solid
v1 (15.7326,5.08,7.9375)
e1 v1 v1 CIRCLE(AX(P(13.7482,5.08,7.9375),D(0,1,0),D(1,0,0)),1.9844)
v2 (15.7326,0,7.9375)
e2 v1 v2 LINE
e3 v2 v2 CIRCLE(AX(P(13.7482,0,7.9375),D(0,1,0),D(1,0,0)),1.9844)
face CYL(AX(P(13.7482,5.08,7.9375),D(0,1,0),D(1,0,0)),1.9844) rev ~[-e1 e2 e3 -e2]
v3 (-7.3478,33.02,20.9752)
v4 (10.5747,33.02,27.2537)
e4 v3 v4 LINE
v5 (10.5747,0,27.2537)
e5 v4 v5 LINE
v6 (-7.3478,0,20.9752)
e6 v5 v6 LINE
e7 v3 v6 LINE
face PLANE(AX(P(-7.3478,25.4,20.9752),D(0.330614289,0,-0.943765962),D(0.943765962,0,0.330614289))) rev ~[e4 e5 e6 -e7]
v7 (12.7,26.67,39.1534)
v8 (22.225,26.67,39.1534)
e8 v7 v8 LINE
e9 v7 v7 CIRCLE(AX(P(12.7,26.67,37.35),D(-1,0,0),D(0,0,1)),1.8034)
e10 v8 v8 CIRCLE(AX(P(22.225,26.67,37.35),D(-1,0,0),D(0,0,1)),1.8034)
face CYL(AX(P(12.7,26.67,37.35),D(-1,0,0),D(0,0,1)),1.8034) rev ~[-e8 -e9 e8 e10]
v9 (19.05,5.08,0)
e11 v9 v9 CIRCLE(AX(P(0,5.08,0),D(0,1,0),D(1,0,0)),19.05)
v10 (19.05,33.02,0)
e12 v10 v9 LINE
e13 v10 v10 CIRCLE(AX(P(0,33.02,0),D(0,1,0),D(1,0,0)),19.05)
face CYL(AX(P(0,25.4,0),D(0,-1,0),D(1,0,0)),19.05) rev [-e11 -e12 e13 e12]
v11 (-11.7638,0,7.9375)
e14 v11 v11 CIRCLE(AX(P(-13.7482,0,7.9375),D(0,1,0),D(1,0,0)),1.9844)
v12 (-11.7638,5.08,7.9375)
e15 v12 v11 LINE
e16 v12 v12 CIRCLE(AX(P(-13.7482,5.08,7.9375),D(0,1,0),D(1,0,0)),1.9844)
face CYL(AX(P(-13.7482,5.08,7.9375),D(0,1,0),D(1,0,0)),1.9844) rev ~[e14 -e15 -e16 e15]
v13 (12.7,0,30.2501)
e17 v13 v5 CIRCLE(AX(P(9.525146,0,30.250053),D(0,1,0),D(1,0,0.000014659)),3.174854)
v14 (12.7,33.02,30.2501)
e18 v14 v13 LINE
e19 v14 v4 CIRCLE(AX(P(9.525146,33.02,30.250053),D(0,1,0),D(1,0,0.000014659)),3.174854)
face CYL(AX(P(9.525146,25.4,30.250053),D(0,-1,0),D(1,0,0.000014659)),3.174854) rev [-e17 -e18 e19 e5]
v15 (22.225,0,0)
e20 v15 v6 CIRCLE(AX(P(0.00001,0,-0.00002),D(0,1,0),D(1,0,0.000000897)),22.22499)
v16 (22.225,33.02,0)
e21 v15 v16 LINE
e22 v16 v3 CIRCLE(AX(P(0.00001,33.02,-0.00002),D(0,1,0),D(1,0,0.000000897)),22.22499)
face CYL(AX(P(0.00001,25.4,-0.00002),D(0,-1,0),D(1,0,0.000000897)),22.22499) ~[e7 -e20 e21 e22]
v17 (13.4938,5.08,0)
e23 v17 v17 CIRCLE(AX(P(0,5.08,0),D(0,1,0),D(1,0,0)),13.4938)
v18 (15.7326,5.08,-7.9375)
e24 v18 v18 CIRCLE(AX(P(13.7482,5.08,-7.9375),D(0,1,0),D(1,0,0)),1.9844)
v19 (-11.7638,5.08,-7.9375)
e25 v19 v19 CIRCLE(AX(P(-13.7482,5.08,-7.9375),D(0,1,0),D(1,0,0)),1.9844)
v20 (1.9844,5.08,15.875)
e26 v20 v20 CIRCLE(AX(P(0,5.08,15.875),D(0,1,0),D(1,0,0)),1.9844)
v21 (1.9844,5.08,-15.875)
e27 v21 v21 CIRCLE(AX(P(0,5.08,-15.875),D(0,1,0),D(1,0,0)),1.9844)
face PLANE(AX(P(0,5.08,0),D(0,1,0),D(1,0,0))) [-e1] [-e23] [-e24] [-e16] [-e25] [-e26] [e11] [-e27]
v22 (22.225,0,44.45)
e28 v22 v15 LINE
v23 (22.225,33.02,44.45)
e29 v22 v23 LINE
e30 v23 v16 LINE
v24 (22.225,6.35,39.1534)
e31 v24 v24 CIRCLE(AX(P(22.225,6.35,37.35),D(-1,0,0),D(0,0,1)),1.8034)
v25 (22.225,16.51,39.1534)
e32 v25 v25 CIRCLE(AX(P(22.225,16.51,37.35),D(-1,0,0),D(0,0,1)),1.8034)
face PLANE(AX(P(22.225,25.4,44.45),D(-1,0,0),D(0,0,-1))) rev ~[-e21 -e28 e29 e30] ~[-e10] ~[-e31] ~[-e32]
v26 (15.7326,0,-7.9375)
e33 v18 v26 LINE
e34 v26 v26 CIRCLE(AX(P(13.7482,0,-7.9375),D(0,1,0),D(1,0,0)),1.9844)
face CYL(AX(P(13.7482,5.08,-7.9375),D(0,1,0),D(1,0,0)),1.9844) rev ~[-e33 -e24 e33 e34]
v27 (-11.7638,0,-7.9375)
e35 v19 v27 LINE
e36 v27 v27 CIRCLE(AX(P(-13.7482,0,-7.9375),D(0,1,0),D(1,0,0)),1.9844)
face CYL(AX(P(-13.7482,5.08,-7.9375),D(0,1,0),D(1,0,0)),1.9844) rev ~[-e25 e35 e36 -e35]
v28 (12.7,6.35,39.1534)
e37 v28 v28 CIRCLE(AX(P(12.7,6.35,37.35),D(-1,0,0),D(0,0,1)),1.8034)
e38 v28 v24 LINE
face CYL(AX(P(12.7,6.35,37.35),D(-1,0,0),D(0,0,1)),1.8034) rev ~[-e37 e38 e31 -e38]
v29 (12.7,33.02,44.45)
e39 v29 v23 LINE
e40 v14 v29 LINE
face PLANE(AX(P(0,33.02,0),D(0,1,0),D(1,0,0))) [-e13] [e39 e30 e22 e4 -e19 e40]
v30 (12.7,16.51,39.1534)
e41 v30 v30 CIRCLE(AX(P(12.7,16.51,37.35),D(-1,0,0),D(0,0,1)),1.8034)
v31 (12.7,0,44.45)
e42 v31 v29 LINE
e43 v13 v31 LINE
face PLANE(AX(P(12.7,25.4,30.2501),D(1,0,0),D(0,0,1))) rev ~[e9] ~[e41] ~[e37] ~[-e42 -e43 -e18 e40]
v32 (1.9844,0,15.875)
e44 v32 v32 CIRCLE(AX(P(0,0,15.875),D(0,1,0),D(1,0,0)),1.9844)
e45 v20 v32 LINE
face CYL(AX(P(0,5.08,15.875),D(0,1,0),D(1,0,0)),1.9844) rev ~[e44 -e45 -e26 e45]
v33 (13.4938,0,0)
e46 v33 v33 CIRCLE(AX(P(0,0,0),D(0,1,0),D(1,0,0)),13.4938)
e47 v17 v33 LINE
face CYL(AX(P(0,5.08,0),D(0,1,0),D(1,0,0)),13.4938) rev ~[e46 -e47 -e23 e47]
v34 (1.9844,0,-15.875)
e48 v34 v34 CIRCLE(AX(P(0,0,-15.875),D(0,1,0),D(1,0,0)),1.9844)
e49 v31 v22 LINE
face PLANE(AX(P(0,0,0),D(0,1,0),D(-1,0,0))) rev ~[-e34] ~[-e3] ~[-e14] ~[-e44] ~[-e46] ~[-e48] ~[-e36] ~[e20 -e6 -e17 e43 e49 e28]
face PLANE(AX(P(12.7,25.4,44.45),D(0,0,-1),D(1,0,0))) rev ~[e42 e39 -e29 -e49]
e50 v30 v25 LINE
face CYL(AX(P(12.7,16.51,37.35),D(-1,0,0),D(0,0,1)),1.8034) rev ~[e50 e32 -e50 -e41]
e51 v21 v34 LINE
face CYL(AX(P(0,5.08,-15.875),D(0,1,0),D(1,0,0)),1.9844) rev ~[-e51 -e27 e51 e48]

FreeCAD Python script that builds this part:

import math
import FreeCAD as App
import Part
import Sketcher

V = App.Vector
Q = App.Units.Quantity

doc = App.newDocument("Part")
body = doc.addObject("PartDesign::Body", "Body")

sketch1 = doc.addObject("Sketcher::SketchObject", "Sketch")
body.addObject(sketch1)
sketch1.AttachmentSupport = (doc.XZ_Plane, [""])
sketch1.MapMode = "FlatFace"
sketch1.addGeometry([
    Part.LineSegment(V(22.2, 44.5, 0), V(22.2, 0, 0)),
    Part.ArcOfCircle(Part.Circle(V(0, 0, 0), V(0, 0, 1), 22.2), math.radians(109), math.radians(360)),
    Part.LineSegment(V(-7.3, 21, 0), V(10.6, 27.3, 0)),
    Part.ArcOfCircle(Part.Circle(V(9.5, 30.3, 0), V(0, 0, 1), 3.2), math.radians(-71), math.radians(0)),
    Part.LineSegment(V(12.7, 30.3, 0), V(12.7, 44.5, 0)),
    Part.LineSegment(V(12.7, 44.5, 0), V(22.2, 44.5, 0)),
], False)
sketch1.addConstraint([
    Sketcher.Constraint("Tangent", 0, 2, 1, 2),
    Sketcher.Constraint("Tangent", 1, 1, 2, 1),
    Sketcher.Constraint("Tangent", 2, 2, 3, 1),
    Sketcher.Constraint("Tangent", 3, 2, 4, 1),
    Sketcher.Constraint("Coincident", 4, 2, 5, 1),
    Sketcher.Constraint("Coincident", 5, 2, 0, 1),
    Sketcher.Constraint("Vertical", 0),
    Sketcher.Constraint("Vertical", 4),
    Sketcher.Constraint("Horizontal", 5),
    Sketcher.Constraint("Coincident", 1, 3, -1, 1),
    Sketcher.Constraint("Radius", 1, Q("0.875 in")),
    Sketcher.Constraint("Radius", 3, Q("0.125 in")),
    Sketcher.Constraint("DistanceY", 0, 2, 0, 1, Q("1.75 in")),
    Sketcher.Constraint("DistanceX", 5, 1, 5, 2, Q("0.375 in")),
    Sketcher.Constraint("DistanceY", 4, 1, 4, 2, Q("14.2 mm")),
])
pad1 = doc.addObject("PartDesign::Pad", "Pad")
body.addObject(pad1)
pad1.Profile = sketch1
pad1.Length = Q("1 in")
pad1.Reversed = True

sketch2 = doc.addObject("Sketcher::SketchObject", "Sketch001")
body.addObject(sketch2)
sketch2.AttachmentSupport = (doc.XZ_Plane, [""])
sketch2.MapMode = "FlatFace"
sketch2.AttachmentOffset = App.Placement(V(0, 0, -1 * 25.4), App.Rotation())
sketch2.addGeometry(Part.Circle(V(0, 0, 0), V(0, 0, 1), 19), False)
sketch2.addConstraint([
    Sketcher.Constraint("Coincident", 0, 3, -1, 1),
    Sketcher.Constraint("Diameter", 0, Q("1.5 in")),
])
pocket1 = doc.addObject("PartDesign::Pocket", "Pocket")
body.addObject(pocket1)
pocket1.Profile = sketch2
pocket1.Length = Q("0.8 in")
pocket1.Reversed = True

sketch3 = doc.addObject("Sketcher::SketchObject", "Sketch002")
body.addObject(sketch3)
sketch3.AttachmentSupport = (doc.XZ_Plane, [""])
sketch3.MapMode = "FlatFace"
sketch3.AttachmentOffset = App.Placement(V(0, 0, -0.2 * 25.4), App.Rotation())
sketch3.addGeometry([
    Part.Circle(V(0, -15.9, 0), V(0, 0, 1), 2),
    Part.Circle(V(-13.7, -7.9, 0), V(0, 0, 1), 2),
    Part.Circle(V(-13.7, 7.9, 0), V(0, 0, 1), 2),
    Part.Circle(V(0, 15.9, 0), V(0, 0, 1), 2),
    Part.Circle(V(13.7, 7.9, 0), V(0, 0, 1), 2),
    Part.Circle(V(13.7, -7.9, 0), V(0, 0, 1), 2),
    Part.Circle(V(0, 0, 0), V(0, 0, 1), 13.5),
], False)
sketch3.addConstraint([
    Sketcher.Constraint("Coincident", 6, 3, -1, 1),
    Sketcher.Constraint("Equal", 0, 1),
    Sketcher.Constraint("Equal", 1, 2),
    Sketcher.Constraint("Equal", 2, 3),
    Sketcher.Constraint("Equal", 3, 4),
    Sketcher.Constraint("Equal", 4, 5),
    Sketcher.Constraint("Symmetric", 0, 3, 3, 3, -1, 1),
    Sketcher.Constraint("Symmetric", 1, 3, 4, 3, -1, 1),
    Sketcher.Constraint("Symmetric", 2, 3, 5, 3, -1, 1),
    Sketcher.Constraint("Symmetric", 2, 3, 4, 3, -2),
    Sketcher.Constraint("PointOnObject", 0, 3, -2),
    Sketcher.Constraint("Diameter", 0, Q("0.156252 in")),
    Sketcher.Constraint("Diameter", 6, Q("1.0625 in")),
    Sketcher.Constraint("DistanceY", 0, 3, 3, 3, Q("1.25 in")),
    Sketcher.Constraint("DistanceY", 1, 3, -1, 1, Q("0.3125 in")),
    Sketcher.Constraint("DistanceX", 1, 3, -1, 1, Q("13.7482 mm")),
])
pocket2 = doc.addObject("PartDesign::Pocket", "Pocket001")
body.addObject(pocket2)
pocket2.Profile = sketch3
pocket2.Type = "UpToFirst"
pocket2.Reversed = True

sketch4 = doc.addObject("Sketcher::SketchObject", "Sketch003")
body.addObject(sketch4)
sketch4.AttachmentSupport = (doc.XZ_Plane, [""])
sketch4.MapMode = "FlatFace"
sketch4.AttachmentOffset = App.Placement(V(0, 0, -1 * 25.4), App.Rotation())
sketch4.addGeometry([
    Part.LineSegment(V(12.7, 30.3, 0), V(12.7, 44.5, 0)),
    Part.LineSegment(V(12.7, 44.5, 0), V(22.2, 44.5, 0)),
    Part.LineSegment(V(22.2, 44.5, 0), V(22.2, 0, 0)),
    Part.ArcOfCircle(Part.Circle(V(0, 0, 0), V(0, 0, 1), 22.2), math.radians(109), math.radians(360)),
    Part.LineSegment(V(-7.3, 21, 0), V(10.6, 27.3, 0)),
    Part.ArcOfCircle(Part.Circle(V(9.5, 30.3, 0), V(0, 0, 1), 3.2), math.radians(-71), math.radians(0)),
    Part.Circle(V(0, 0, 0), V(0, 0, 1), 19.1),
], False)
sketch4.addConstraint([
    Sketcher.Constraint("Coincident", 0, 2, 1, 1),
    Sketcher.Constraint("Coincident", 1, 2, 2, 1),
    Sketcher.Constraint("Tangent", 2, 2, 3, 2),
    Sketcher.Constraint("Tangent", 3, 1, 4, 1),
    Sketcher.Constraint("Tangent", 4, 2, 5, 1),
    Sketcher.Constraint("Tangent", 5, 2, 0, 1),
    Sketcher.Constraint("Vertical", 0),
    Sketcher.Constraint("Horizontal", 1),
    Sketcher.Constraint("Vertical", 2),
    Sketcher.Constraint("Coincident", 3, 3, -1, 1),
    Sketcher.Constraint("Coincident", 6, 3, -1, 1),
    Sketcher.Constraint("Diameter", 6, Q("1.5 in")),
    Sketcher.Constraint("Radius", 3, Q("0.875 in")),
    Sketcher.Constraint("Radius", 5, Q("0.125 in")),
    Sketcher.Constraint("DistanceY", 2, 2, 2, 1, Q("1.75 in")),
    Sketcher.Constraint("DistanceX", -1, 1, 0, 2, Q("0.5 in")),
    Sketcher.Constraint("DistanceY", 0, 1, 0, 2, Q("14.2 mm")),
])
pad2 = doc.addObject("PartDesign::Pad", "Pad001")
body.addObject(pad2)
pad2.Profile = sketch4
pad2.Length = Q("0.3 in")
pad2.Reversed = True

sketch5 = doc.addObject("Sketcher::SketchObject", "Sketch004")
body.addObject(sketch5)
sketch5.AttachmentSupport = (doc.YZ_Plane, [""])
sketch5.MapMode = "FlatFace"
sketch5.AttachmentOffset = App.Placement(V(0, 0, 0.5 * 25.4), App.Rotation())
sketch5.addGeometry([
    Part.Circle(V(26.7, 37.4, 0), V(0, 0, 1), 1.8),
    Part.Circle(V(16.5, 37.4, 0), V(0, 0, 1), 1.8),
    Part.Circle(V(6.3, 37.4, 0), V(0, 0, 1), 1.8),
], False)
sketch5.addConstraint([
    Sketcher.Constraint("Equal", 0, 1),
    Sketcher.Constraint("Equal", 1, 2),
    Sketcher.Constraint("Horizontal", 0, 3, 1, 3),
    Sketcher.Constraint("Horizontal", 1, 3, 2, 3),
    Sketcher.Constraint("Diameter", 0, Q("0.142 in")),
    Sketcher.Constraint("DistanceX", 1, 3, 0, 3, Q("0.4 in")),
    Sketcher.Constraint("DistanceX", 2, 3, 1, 3, Q("0.4 in")),
    Sketcher.Constraint("DistanceX", -1, 1, 0, 3, Q("1.05 in")),
    Sketcher.Constraint("DistanceY", -1, 1, 0, 3, Q("37.35 mm")),
])
pocket3 = doc.addObject("PartDesign::Pocket", "Pocket002")
body.addObject(pocket3)
pocket3.Profile = sketch5
pocket3.Type = "UpToFirst"
pocket3.Reversed = True

doc.recompute()
